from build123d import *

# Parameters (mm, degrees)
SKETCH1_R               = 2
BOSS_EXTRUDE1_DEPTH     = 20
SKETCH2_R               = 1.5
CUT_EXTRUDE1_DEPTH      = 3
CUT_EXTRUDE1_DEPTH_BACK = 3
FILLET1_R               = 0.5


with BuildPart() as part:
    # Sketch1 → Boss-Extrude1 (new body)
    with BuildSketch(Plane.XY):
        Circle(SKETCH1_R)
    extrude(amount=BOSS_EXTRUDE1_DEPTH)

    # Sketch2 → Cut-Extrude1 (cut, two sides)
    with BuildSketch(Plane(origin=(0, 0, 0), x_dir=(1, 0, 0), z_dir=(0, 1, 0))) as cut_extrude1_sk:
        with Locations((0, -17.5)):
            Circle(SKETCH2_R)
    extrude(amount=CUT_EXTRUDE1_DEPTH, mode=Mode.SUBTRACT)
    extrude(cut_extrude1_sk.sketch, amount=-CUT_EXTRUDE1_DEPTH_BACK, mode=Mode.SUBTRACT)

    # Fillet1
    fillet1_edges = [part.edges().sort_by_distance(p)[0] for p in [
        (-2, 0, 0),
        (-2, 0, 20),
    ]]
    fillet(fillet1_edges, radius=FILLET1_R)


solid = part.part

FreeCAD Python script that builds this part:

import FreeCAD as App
import Part
import Sketcher

V = App.Vector


def edges_at(feature, points):
    """Names of the edges that pass closest to the given points."""
    edges = feature.Shape.Edges
    near = lambda p: min(range(len(edges)), key=lambda i: edges[i].distToShape(Part.Vertex(*p))[0])
    return sorted({f"Edge{near(p) + 1}" for p in points})

doc = App.newDocument("Part")
body = doc.addObject("PartDesign::Body", "Body")

# Sketch on XY plane
sketch1 = doc.addObject("Sketcher::SketchObject", "Sketch")
body.addObject(sketch1)
sketch1.AttachmentSupport = (doc.XY_Plane, [""])
sketch1.MapMode = "FlatFace"
sketch1.addGeometry(Part.Circle(V(0, 0, 0), V(0, 0, 1), 2), False)
sketch1.addConstraint(Sketcher.Constraint("Coincident", 0, 3, -1, 1))
sketch1.addConstraint(Sketcher.Constraint("Diameter", 0, 4.0))
pad1 = doc.addObject("PartDesign::Pad", "Pad")
body.addObject(pad1)
pad1.Profile = sketch1
pad1.Length = 20

# Sketch on XZ plane
sketch2 = doc.addObject("Sketcher::SketchObject", "Sketch001")
body.addObject(sketch2)
sketch2.AttachmentSupport = (doc.XZ_Plane, [""])
sketch2.MapMode = "FlatFace"
sketch2.addGeometry(Part.Circle(V(0, 17.5, 0), V(0, 0, 1), 1.5), False)
sketch2.addConstraint(Sketcher.Constraint("PointOnObject", 0, 3, -2))
sketch2.addConstraint(Sketcher.Constraint("Diameter", 0, 3.0))
sketch2.addConstraint(Sketcher.Constraint("DistanceY", -1, 1, 0, 3, 17.5))
pocket1 = doc.addObject("PartDesign::Pocket", "Pocket")
body.addObject(pocket1)
pocket1.Profile = sketch2
pocket1.Type = "ThroughAll"
pocket1.Midplane = True
doc.recompute()

fillet = doc.addObject("PartDesign::Fillet", "Fillet")
body.addObject(fillet)
fillet.Base = (pocket1, edges_at(pocket1, [(-2, 0, 0), (-2, 0, 20)]))
fillet.Radius = 0.5

doc.recompute()
